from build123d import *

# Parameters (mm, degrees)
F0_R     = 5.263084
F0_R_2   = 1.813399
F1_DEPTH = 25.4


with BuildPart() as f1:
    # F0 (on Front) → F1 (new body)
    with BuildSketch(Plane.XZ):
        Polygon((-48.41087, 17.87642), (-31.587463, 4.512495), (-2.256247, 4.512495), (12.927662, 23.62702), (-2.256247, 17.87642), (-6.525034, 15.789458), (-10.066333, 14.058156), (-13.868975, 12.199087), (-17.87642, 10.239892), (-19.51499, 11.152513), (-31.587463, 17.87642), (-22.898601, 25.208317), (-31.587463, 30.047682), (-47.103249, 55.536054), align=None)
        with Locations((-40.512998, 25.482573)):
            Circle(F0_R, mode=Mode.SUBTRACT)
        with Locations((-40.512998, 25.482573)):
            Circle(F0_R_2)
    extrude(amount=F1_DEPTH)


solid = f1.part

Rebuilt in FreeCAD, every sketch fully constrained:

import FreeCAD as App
import Part
import Sketcher

V = App.Vector
Q = App.Units.Quantity

doc = App.newDocument("Part")
body = doc.addObject("PartDesign::Body", "Body")
body.AllowCompound = True

# Sketch on XZ plane
sketch1 = body.newObject("Sketcher::SketchObject", "Sketch")
sketch1.AttachmentSupport = (doc.getObject("XZ_Plane"), [""])
sketch1.MapMode = "FlatFace"
sketch1.addGeometry([
    Part.LineSegment(V(-48.41087, 17.87642, 0), V(-31.587463, 4.512495, 0)),  # 0
    Part.LineSegment(V(-31.587463, 4.512495, 0), V(-2.256247, 4.512495, 0)),  # 1
    Part.LineSegment(V(-2.256247, 4.512495, 0), V(12.927662, 23.62702, 0)),  # 2
    Part.LineSegment(V(12.927662, 23.62702, 0), V(-2.256247, 17.87642, 0)),  # 3
    Part.LineSegment(V(-2.256247, 17.87642, 0), V(-6.525034, 15.789458, 0)),  # 4
    Part.LineSegment(V(-6.525034, 15.789458, 0), V(-10.066333, 14.058156, 0)),  # 5
    Part.LineSegment(V(-10.066333, 14.058156, 0), V(-13.868975, 12.199087, 0)),  # 6
    Part.LineSegment(V(-13.868975, 12.199087, 0), V(-17.87642, 10.239892, 0)),  # 7
    Part.LineSegment(V(-17.87642, 10.239892, 0), V(-19.51499, 11.152513, 0)),  # 8
    Part.LineSegment(V(-19.51499, 11.152513, 0), V(-31.587463, 17.87642, 0)),  # 9
    Part.LineSegment(V(-31.587463, 17.87642, 0), V(-22.898601, 25.208317, 0)),  # 10
    Part.LineSegment(V(-22.898601, 25.208317, 0), V(-31.587463, 30.047682, 0)),  # 11
    Part.LineSegment(V(-31.587463, 30.047682, 0), V(-47.103249, 55.536054, 0)),  # 12
    Part.LineSegment(V(-47.103249, 55.536054, 0), V(-48.41087, 17.87642, 0)),  # 13
    Part.Circle(V(-40.512998, 25.482573, 0), V(0, 0, 1), 5.263084),  # 14
    Part.Circle(V(-40.512998, 25.482573, 0), V(0, 0, 1), 1.813399),  # 15
], False)
sketch1.addConstraint([
    Sketcher.Constraint("Coincident", 0, 2, 1, 1),
    Sketcher.Constraint("Coincident", 1, 2, 2, 1),
    Sketcher.Constraint("Coincident", 2, 2, 3, 1),
    Sketcher.Constraint("Coincident", 3, 2, 4, 1),
    Sketcher.Constraint("Coincident", 4, 2, 5, 1),
    Sketcher.Constraint("Coincident", 5, 2, 6, 1),
    Sketcher.Constraint("Coincident", 6, 2, 7, 1),
    Sketcher.Constraint("Coincident", 7, 2, 8, 1),
    Sketcher.Constraint("Coincident", 8, 2, 9, 1),
    Sketcher.Constraint("Coincident", 9, 2, 10, 1),
    Sketcher.Constraint("Coincident", 10, 2, 11, 1),
    Sketcher.Constraint("Coincident", 11, 2, 12, 1),
    Sketcher.Constraint("Coincident", 12, 2, 13, 1),
    Sketcher.Constraint("Coincident", 13, 2, 0, 1),
    Sketcher.Constraint("Horizontal", 1),
    Sketcher.Constraint("Coincident", 15, 3, 14, 3),
    Sketcher.Constraint("Perpendicular", 0, 2),
    Sketcher.Constraint("Parallel", 4, 5),
    Sketcher.Constraint("Parallel", 5, 6),
    Sketcher.Constraint("Parallel", 6, 7),
    Sketcher.Constraint("Parallel", 8, 9),
    Sketcher.Constraint("Parallel", 9, 11),
    Sketcher.Constraint("Horizontal", 3, 2, 9, 2),
    Sketcher.Constraint("Horizontal", 9, 2, 13, 2),
    Sketcher.Constraint("Vertical", 1, 2, 3, 2),
    Sketcher.Constraint("Vertical", 0, 2, 9, 2),
    Sketcher.Constraint("Vertical", 9, 2, 11, 2),
    Sketcher.Constraint("Diameter", 15, Q("3.626798 mm")),
    Sketcher.Constraint("DistanceX", 14, 3, -1, 1, Q("1.5949999 in")),
    Sketcher.Constraint("Diameter", 14, Q("10.526168 mm")),
    Sketcher.Constraint("DistanceX", 10, 2, -1, 1, Q("22.898601 mm")),
    Sketcher.Constraint("DistanceY", 3, 2, 2, 2, Q("5.7506 mm")),
    Sketcher.Constraint("DistanceX", 5, 2, 4, 2, Q("3.541299 mm")),
    Sketcher.Constraint("DistanceY", 5, 2, 4, 2, Q("1.731302 mm")),
    Sketcher.Constraint("Distance", 0, Q("21.485379 mm")),
    Sketcher.Constraint("Distance", 10, Q("11.368951 mm")),
    Sketcher.Constraint("Distance", 11, Q("9.945641 mm")),
    Sketcher.Constraint("Distance", 13, Q("37.682329 mm")),
    Sketcher.Constraint("DistanceX", 1, 1, 1, 2, Q("29.331216 mm")),
    Sketcher.Constraint("DistanceY", -1, 1, 2, 2, Q("23.62702 mm")),
    Sketcher.Constraint("DistanceX", 7, 2, -1, 1, Q("17.87642 mm")),
    Sketcher.Constraint("DistanceX", 8, 2, -1, 1, Q("19.51499 mm")),
    Sketcher.Constraint("DistanceX", 12, 2, -1, 1, Q("47.103249 mm")),
    Sketcher.Constraint("DistanceX", 13, 2, -1, 1, Q("48.41087 mm")),
    Sketcher.Constraint("DistanceY", 4, 2, 3, 2, Q("2.086962 mm")),
    Sketcher.Constraint("DistanceY", 6, 2, 5, 2, Q("1.859069 mm")),
    Sketcher.Constraint("DistanceY", 14, 3, 11, 2, Q("4.565109 mm")),
])
pad1 = body.newObject("PartDesign::Pad", "Pad")
pad1.Profile = sketch1
pad1.Length = Q("1 in")

doc.recompute()
